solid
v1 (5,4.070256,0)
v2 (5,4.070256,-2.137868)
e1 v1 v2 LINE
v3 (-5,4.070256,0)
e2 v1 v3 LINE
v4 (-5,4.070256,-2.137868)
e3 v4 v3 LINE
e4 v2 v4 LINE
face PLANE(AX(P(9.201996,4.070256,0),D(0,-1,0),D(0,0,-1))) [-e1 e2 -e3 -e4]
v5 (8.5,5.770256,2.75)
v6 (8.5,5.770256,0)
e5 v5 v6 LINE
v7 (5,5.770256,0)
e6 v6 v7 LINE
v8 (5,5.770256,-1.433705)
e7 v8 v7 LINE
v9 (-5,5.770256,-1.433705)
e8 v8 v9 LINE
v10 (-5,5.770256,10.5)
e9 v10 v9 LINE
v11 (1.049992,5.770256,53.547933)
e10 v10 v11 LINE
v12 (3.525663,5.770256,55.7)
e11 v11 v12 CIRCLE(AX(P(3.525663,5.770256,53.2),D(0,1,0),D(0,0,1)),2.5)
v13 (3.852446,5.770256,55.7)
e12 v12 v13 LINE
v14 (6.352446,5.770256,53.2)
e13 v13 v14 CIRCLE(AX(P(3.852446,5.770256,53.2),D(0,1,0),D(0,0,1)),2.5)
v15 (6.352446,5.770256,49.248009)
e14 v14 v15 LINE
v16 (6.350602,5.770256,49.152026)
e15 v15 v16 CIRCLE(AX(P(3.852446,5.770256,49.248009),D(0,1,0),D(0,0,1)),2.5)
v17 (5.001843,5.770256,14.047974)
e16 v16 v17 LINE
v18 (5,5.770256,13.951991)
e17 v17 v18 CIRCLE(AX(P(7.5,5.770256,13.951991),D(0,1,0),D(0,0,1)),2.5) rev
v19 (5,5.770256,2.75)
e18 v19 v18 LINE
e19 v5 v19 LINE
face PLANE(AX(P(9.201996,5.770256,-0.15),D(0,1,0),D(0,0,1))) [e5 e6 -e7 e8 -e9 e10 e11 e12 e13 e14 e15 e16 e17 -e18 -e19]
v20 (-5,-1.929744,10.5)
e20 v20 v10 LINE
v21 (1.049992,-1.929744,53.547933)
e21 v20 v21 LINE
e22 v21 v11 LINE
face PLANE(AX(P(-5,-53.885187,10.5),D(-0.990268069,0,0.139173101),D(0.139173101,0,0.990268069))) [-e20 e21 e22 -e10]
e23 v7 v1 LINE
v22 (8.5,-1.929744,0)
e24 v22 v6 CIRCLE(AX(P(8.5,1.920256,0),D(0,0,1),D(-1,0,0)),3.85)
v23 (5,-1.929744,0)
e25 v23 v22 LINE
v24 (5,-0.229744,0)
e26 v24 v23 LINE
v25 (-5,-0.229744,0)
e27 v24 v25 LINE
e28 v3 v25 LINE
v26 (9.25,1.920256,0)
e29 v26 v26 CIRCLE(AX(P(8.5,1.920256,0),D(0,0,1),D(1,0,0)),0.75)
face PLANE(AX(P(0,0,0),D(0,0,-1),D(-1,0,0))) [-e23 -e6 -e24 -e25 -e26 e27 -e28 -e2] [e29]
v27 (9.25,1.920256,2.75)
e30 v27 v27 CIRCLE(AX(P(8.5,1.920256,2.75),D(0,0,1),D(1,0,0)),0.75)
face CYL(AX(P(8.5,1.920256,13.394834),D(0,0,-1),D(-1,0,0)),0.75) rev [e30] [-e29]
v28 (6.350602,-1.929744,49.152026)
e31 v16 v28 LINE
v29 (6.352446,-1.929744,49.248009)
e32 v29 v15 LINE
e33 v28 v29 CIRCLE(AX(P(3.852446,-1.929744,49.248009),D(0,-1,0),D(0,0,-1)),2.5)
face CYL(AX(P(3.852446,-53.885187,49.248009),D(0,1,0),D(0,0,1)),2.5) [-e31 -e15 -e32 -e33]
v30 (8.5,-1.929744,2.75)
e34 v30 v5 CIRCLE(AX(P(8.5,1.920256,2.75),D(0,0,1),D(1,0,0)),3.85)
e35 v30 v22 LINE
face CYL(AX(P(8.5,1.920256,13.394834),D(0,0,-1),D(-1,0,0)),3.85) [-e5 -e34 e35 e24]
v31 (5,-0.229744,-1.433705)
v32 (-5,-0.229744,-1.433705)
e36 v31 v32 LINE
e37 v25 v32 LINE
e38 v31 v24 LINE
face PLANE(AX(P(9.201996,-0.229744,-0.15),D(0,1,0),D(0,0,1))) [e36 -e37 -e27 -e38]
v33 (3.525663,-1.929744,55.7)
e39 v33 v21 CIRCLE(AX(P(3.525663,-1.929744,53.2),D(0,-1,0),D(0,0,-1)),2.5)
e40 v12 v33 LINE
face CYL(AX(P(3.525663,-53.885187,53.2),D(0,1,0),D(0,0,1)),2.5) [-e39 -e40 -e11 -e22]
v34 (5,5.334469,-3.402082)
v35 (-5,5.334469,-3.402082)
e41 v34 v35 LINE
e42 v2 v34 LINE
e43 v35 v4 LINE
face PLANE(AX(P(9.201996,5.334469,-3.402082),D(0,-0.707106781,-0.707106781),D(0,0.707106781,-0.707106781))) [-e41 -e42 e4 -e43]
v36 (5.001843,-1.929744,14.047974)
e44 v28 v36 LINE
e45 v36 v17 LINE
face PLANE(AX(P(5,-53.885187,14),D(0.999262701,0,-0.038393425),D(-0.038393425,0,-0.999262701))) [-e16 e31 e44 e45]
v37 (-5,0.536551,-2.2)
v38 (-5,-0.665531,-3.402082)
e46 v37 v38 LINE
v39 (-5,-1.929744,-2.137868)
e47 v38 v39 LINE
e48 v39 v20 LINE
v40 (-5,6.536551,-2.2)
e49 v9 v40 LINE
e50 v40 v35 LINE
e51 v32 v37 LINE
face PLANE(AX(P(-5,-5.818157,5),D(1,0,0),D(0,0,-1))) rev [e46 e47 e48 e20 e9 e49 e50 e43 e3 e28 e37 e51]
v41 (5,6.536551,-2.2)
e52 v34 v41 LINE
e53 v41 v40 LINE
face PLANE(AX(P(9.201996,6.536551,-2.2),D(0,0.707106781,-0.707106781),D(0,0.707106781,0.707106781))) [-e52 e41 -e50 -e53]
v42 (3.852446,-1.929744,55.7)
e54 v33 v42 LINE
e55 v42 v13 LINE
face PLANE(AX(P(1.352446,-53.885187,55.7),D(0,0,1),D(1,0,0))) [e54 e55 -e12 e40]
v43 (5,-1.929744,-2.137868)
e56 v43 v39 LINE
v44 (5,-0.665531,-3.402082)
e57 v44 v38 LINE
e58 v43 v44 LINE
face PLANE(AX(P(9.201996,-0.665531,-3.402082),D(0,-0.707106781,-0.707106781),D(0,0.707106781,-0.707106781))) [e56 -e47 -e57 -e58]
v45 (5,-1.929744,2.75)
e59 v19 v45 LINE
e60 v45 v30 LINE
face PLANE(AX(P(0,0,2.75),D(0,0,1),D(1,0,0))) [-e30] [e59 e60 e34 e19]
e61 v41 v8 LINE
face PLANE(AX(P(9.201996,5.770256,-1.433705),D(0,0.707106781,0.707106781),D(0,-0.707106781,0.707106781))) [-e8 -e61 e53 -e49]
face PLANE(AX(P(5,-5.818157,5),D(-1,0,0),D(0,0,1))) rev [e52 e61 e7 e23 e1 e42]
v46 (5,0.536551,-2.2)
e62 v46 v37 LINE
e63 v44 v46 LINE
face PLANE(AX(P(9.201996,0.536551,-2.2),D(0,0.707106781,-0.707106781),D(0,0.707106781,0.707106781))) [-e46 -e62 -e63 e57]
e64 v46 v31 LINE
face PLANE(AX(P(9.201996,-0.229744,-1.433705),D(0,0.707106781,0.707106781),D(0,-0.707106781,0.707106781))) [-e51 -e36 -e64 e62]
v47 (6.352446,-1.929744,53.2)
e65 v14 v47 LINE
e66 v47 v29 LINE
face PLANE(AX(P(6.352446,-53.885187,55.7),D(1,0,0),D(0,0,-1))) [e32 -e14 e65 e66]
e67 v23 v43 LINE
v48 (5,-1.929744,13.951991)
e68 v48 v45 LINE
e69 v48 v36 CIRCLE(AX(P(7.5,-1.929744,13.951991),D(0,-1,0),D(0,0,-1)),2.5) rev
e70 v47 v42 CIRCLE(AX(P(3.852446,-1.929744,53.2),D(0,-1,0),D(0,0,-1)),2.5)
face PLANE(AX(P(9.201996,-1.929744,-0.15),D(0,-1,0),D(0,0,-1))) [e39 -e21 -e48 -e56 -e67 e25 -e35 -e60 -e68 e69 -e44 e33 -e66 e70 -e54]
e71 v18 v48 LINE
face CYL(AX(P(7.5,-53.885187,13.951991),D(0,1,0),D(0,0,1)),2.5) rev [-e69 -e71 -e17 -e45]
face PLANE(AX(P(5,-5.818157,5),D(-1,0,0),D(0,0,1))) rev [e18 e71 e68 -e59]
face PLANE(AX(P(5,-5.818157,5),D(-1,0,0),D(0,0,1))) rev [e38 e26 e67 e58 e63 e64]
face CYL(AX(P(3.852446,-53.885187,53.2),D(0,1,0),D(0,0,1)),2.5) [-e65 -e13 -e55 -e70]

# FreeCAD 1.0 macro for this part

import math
import FreeCAD as App
import Part
import Sketcher
from FreeCAD import Vector
Q = App.Units.Quantity


def edges_at(feature, points):
    """Names of the edges that pass closest to the given points."""
    edges = feature.Shape.Edges
    near = lambda p: min(range(len(edges)), key=lambda i: edges[i].distToShape(Part.Vertex(*p))[0])
    return sorted({f"Edge{near(p) + 1}" for p in points})


def add_polygon(sketch, points):
    """Adds a closed chain of lines whose ends are joined by coincident constraints."""
    first, n = sketch.GeometryCount, len(points)
    for a, b in zip(points, points[1:] + points[:1]):
        sketch.addGeometry(Part.LineSegment(App.Vector(*a, 0), App.Vector(*b, 0)), False)
    for i in range(n):
        sketch.addConstraint(Sketcher.Constraint("Coincident", first + i, 2, first + (i + 1) % n, 1))

doc = App.newDocument("Part")
body = doc.addObject("PartDesign::Body", "Body")

# Sketch on XY plane
sketch1 = body.newObject("Sketcher::SketchObject", "Sketch")
sketch1.AttachmentSupport = (doc.getObject("XY_Plane"), [""])
sketch1.MapMode = "FlatFace"
add_polygon(sketch1, [(-5, 9), (-5, -6), (5, -6), (5, 9)])  # lines 0-3
sketch1.addConstraint([
    Sketcher.Constraint("Vertical", 0),
    Sketcher.Constraint("Horizontal", 1),
    Sketcher.Constraint("Vertical", 2),
    Sketcher.Constraint("Horizontal", 3),
    Sketcher.Constraint("DistanceX", 1, 1, 1, 2, 10.0),
    Sketcher.Constraint("DistanceX", 0, 2, -1, 1, 5.0),
    Sketcher.Constraint("DistanceY", 0, 2, 0, 1, 14.768412),
    Sketcher.Constraint("DistanceY", 0, 2, -1, 1, 5.818157),
])
pad1 = body.newObject("PartDesign::Pad", "Pad")
pad1.Profile = sketch1
pad1.Length = 5

# Sketch on YZ plane
sketch2 = body.newObject("Sketcher::SketchObject", "Sketch001")
sketch2.AttachmentSupport = (doc.getObject("YZ_Plane"), [""])
sketch2.MapMode = "FlatFace"
sketch2.AttachmentOffset = App.Placement(Vector(0, 0, -5), App.Rotation())
add_polygon(sketch2, [(5.8, 0), (5.8, -1.4), (6.5, -2.2), (5.3, -3.4), (4.1, -2.1), (4.1, 0)])  # lines 0-5
add_polygon(sketch2, [(-1.9, 0), (-0.2, 0), (-0.2, -1.4), (0.5, -2.2), (-0.7, -3.4), (-1.9, -2.1)])  # lines 6-11
sketch2.addConstraint([
    Sketcher.Constraint("Vertical", 0),
    Sketcher.Constraint("Vertical", 4),
    Sketcher.Constraint("Horizontal", 5),
    Sketcher.Constraint("Horizontal", 6),
    Sketcher.Constraint("Vertical", 7),
    Sketcher.Constraint("Vertical", 11),
    Sketcher.Constraint("PointOnObject", 4, 2, -1),
    Sketcher.Constraint("PointOnObject", 6, 2, -1),
    Sketcher.Constraint("Perpendicular", 1, 2),
    Sketcher.Constraint("Perpendicular", 2, 3),
    Sketcher.Constraint("Parallel", 3, 8),
    Sketcher.Constraint("Perpendicular", 8, 9),
    Sketcher.Constraint("Perpendicular", 9, 10),
    Sketcher.Constraint("Horizontal", 0, 2, 7, 2),
    Sketcher.Constraint("Horizontal", 1, 2, 8, 2),
    Sketcher.Constraint("Horizontal", 2, 2, 9, 2),
    Sketcher.Constraint("Horizontal", 3, 2, 10, 2),
    Sketcher.Constraint("Angle", 1, Q("-45 deg")),
    Sketcher.Constraint("DistanceX", 5, 1, 5, 2, 1.7),
    Sketcher.Constraint("DistanceX", 6, 2, 5, 2, 6.0),
    Sketcher.Constraint("Distance", 2, 1.7),
    Sketcher.Constraint("DistanceY", 1, 2, -1, 1, 2.2),
    Sketcher.Constraint("DistanceY", 0, 2, 0, 1, 1.433705),
    Sketcher.Constraint("DistanceX", -1, 1, 1, 2, 6.536551),
])
pad2 = body.newObject("PartDesign::Pad", "Pad001")
pad2.Profile = sketch2
pad2.Length = 10

# Sketch on XY plane
sketch3 = body.newObject("Sketcher::SketchObject", "Sketch002")
sketch3.AttachmentSupport = (doc.getObject("XY_Plane"), [""])
sketch3.MapMode = "FlatFace"
add_polygon(sketch3, [(5, 9), (5, 5.8), (-5, 5.8), (-5, 9)])  # lines 0-3
add_polygon(sketch3, [(5, -1.9), (5, -5.8), (-5, -5.8), (-5, -1.9)])  # lines 4-7
sketch3.addConstraint([
    Sketcher.Constraint("Vertical", 0),
    Sketcher.Constraint("Horizontal", 1),
    Sketcher.Constraint("Vertical", 2),
    Sketcher.Constraint("Horizontal", 3),
    Sketcher.Constraint("Vertical", 4),
    Sketcher.Constraint("Horizontal", 5),
    Sketcher.Constraint("Vertical", 6),
    Sketcher.Constraint("Horizontal", 7),
    Sketcher.Constraint("Vertical", 3, 2, 4, 2),
    Sketcher.Constraint("Vertical", 2, 2, 5, 2),
    Sketcher.Constraint("DistanceX", 1, 2, 1, 1, 10.0),
    Sketcher.Constraint("DistanceX", -1, 1, 0, 2, 5.0),
    Sketcher.Constraint("DistanceY", 0, 2, 0, 1, 3.18),
    Sketcher.Constraint("DistanceY", 6, 2, 1, 2, 7.7),
    Sketcher.Constraint("DistanceY", 4, 2, 4, 1, 3.888412),
    Sketcher.Constraint("DistanceY", -1, 1, 0, 2, 5.770256),
])
pocket1 = body.newObject("PartDesign::Pocket", "Pocket")
pocket1.Profile = sketch3
pocket1.Length = 5
pocket1.Reversed = True

# Sketch on XZ plane
sketch4 = body.newObject("Sketcher::SketchObject", "Sketch003")
sketch4.AttachmentSupport = (doc.getObject("XZ_Plane"), [""])
sketch4.MapMode = "FlatFace"
sketch4.AttachmentOffset = App.Placement(Vector(0, 0, -5.770256), App.Rotation())
add_polygon(sketch4, [(-5, 5), (-5, 10), (1, 56), (6, 56), (6, 49), (5, 14), (5, 5)])  # lines 0-6
sketch4.addConstraint([
    Sketcher.Constraint("Vertical", 0),
    Sketcher.Constraint("Horizontal", 2),
    Sketcher.Constraint("Vertical", 3),
    Sketcher.Constraint("Vertical", 5),
    Sketcher.Constraint("Horizontal", 6),
    Sketcher.Constraint("DistanceX", 2, 1, 2, 2, 5.0),
    Sketcher.Constraint("DistanceX", 6, 2, 6, 1, 10.0),
    Sketcher.Constraint("DistanceY", 5, 2, 5, 1, 9.0),
    Sketcher.Constraint("Angle", 1, Q("82 deg")),
    Sketcher.Constraint("DistanceY", 0, 1, 0, 2, 5.5),
    Sketcher.Constraint("DistanceY", 3, 2, 3, 1, 6.5),
    Sketcher.Constraint("DistanceX", 0, 2, -1, 1, 5.0),
    Sketcher.Constraint("DistanceY", -1, 1, 4, 2, 14.0),
    Sketcher.Constraint("DistanceY", -1, 1, 1, 2, 55.7),
])
pad3 = body.newObject("PartDesign::Pad", "Pad002")
pad3.Profile = sketch4
pad3.Length = 7.7

# Sketch on XY plane
sketch5 = body.newObject("Sketcher::SketchObject", "Sketch004")
sketch5.AttachmentSupport = (doc.getObject("XY_Plane"), [""])
sketch5.MapMode = "FlatFace"
sketch5.addGeometry([
    Part.LineSegment(Vector(8.5, 5.8, 0), Vector(5, 5.8, 0)),  # 0
    Part.LineSegment(Vector(5, 5.8, 0), Vector(5, -1.9, 0)),  # 1
    Part.LineSegment(Vector(5, -1.9, 0), Vector(8.5, -1.9, 0)),  # 2
    Part.ArcOfCircle(Part.Circle(Vector(8.5, 1.9, 0), Vector(0, 0, 1), 3.9), math.radians(-90), math.radians(90)),  # 3
    Part.Circle(Vector(8.5, 1.9, 0), Vector(0, 0, 1), 0.8),  # 4
], False)
sketch5.addConstraint([
    Sketcher.Constraint("Coincident", 0, 2, 1, 1),
    Sketcher.Constraint("Coincident", 1, 2, 2, 1),
    Sketcher.Constraint("Tangent", 2, 2, 3, 1),
    Sketcher.Constraint("Tangent", 3, 2, 0, 1),
    Sketcher.Constraint("Horizontal", 0),
    Sketcher.Constraint("Vertical", 1),
    Sketcher.Constraint("Horizontal", 2),
    Sketcher.Constraint("Coincident", 4, 3, 3, 3),
    Sketcher.Constraint("Diameter", 4, 1.5),
    Sketcher.Constraint("Radius", 3, 3.85),
    Sketcher.Constraint("DistanceX", 0, 2, 0, 1, 3.5),
    Sketcher.Constraint("DistanceX", -1, 1, 0, 2, 5.0),
    Sketcher.Constraint("DistanceY", -1, 1, 3, 3, 1.920256),
])
pad4 = body.newObject("PartDesign::Pad", "Pad003")
pad4.Profile = sketch5
pad4.Length = 2.75
doc.recompute()

fillet = body.newObject("PartDesign::Fillet", "Fillet")
fillet.Base = (pad4, edges_at(pad4, [
    (6.352, 1.92, 49.2),
    (5, 1.92, 14),
    (1.352, 1.92, 55.7),
    (6.352, 1.92, 55.7),
]))
fillet.Radius = 2.5

doc.recompute()
